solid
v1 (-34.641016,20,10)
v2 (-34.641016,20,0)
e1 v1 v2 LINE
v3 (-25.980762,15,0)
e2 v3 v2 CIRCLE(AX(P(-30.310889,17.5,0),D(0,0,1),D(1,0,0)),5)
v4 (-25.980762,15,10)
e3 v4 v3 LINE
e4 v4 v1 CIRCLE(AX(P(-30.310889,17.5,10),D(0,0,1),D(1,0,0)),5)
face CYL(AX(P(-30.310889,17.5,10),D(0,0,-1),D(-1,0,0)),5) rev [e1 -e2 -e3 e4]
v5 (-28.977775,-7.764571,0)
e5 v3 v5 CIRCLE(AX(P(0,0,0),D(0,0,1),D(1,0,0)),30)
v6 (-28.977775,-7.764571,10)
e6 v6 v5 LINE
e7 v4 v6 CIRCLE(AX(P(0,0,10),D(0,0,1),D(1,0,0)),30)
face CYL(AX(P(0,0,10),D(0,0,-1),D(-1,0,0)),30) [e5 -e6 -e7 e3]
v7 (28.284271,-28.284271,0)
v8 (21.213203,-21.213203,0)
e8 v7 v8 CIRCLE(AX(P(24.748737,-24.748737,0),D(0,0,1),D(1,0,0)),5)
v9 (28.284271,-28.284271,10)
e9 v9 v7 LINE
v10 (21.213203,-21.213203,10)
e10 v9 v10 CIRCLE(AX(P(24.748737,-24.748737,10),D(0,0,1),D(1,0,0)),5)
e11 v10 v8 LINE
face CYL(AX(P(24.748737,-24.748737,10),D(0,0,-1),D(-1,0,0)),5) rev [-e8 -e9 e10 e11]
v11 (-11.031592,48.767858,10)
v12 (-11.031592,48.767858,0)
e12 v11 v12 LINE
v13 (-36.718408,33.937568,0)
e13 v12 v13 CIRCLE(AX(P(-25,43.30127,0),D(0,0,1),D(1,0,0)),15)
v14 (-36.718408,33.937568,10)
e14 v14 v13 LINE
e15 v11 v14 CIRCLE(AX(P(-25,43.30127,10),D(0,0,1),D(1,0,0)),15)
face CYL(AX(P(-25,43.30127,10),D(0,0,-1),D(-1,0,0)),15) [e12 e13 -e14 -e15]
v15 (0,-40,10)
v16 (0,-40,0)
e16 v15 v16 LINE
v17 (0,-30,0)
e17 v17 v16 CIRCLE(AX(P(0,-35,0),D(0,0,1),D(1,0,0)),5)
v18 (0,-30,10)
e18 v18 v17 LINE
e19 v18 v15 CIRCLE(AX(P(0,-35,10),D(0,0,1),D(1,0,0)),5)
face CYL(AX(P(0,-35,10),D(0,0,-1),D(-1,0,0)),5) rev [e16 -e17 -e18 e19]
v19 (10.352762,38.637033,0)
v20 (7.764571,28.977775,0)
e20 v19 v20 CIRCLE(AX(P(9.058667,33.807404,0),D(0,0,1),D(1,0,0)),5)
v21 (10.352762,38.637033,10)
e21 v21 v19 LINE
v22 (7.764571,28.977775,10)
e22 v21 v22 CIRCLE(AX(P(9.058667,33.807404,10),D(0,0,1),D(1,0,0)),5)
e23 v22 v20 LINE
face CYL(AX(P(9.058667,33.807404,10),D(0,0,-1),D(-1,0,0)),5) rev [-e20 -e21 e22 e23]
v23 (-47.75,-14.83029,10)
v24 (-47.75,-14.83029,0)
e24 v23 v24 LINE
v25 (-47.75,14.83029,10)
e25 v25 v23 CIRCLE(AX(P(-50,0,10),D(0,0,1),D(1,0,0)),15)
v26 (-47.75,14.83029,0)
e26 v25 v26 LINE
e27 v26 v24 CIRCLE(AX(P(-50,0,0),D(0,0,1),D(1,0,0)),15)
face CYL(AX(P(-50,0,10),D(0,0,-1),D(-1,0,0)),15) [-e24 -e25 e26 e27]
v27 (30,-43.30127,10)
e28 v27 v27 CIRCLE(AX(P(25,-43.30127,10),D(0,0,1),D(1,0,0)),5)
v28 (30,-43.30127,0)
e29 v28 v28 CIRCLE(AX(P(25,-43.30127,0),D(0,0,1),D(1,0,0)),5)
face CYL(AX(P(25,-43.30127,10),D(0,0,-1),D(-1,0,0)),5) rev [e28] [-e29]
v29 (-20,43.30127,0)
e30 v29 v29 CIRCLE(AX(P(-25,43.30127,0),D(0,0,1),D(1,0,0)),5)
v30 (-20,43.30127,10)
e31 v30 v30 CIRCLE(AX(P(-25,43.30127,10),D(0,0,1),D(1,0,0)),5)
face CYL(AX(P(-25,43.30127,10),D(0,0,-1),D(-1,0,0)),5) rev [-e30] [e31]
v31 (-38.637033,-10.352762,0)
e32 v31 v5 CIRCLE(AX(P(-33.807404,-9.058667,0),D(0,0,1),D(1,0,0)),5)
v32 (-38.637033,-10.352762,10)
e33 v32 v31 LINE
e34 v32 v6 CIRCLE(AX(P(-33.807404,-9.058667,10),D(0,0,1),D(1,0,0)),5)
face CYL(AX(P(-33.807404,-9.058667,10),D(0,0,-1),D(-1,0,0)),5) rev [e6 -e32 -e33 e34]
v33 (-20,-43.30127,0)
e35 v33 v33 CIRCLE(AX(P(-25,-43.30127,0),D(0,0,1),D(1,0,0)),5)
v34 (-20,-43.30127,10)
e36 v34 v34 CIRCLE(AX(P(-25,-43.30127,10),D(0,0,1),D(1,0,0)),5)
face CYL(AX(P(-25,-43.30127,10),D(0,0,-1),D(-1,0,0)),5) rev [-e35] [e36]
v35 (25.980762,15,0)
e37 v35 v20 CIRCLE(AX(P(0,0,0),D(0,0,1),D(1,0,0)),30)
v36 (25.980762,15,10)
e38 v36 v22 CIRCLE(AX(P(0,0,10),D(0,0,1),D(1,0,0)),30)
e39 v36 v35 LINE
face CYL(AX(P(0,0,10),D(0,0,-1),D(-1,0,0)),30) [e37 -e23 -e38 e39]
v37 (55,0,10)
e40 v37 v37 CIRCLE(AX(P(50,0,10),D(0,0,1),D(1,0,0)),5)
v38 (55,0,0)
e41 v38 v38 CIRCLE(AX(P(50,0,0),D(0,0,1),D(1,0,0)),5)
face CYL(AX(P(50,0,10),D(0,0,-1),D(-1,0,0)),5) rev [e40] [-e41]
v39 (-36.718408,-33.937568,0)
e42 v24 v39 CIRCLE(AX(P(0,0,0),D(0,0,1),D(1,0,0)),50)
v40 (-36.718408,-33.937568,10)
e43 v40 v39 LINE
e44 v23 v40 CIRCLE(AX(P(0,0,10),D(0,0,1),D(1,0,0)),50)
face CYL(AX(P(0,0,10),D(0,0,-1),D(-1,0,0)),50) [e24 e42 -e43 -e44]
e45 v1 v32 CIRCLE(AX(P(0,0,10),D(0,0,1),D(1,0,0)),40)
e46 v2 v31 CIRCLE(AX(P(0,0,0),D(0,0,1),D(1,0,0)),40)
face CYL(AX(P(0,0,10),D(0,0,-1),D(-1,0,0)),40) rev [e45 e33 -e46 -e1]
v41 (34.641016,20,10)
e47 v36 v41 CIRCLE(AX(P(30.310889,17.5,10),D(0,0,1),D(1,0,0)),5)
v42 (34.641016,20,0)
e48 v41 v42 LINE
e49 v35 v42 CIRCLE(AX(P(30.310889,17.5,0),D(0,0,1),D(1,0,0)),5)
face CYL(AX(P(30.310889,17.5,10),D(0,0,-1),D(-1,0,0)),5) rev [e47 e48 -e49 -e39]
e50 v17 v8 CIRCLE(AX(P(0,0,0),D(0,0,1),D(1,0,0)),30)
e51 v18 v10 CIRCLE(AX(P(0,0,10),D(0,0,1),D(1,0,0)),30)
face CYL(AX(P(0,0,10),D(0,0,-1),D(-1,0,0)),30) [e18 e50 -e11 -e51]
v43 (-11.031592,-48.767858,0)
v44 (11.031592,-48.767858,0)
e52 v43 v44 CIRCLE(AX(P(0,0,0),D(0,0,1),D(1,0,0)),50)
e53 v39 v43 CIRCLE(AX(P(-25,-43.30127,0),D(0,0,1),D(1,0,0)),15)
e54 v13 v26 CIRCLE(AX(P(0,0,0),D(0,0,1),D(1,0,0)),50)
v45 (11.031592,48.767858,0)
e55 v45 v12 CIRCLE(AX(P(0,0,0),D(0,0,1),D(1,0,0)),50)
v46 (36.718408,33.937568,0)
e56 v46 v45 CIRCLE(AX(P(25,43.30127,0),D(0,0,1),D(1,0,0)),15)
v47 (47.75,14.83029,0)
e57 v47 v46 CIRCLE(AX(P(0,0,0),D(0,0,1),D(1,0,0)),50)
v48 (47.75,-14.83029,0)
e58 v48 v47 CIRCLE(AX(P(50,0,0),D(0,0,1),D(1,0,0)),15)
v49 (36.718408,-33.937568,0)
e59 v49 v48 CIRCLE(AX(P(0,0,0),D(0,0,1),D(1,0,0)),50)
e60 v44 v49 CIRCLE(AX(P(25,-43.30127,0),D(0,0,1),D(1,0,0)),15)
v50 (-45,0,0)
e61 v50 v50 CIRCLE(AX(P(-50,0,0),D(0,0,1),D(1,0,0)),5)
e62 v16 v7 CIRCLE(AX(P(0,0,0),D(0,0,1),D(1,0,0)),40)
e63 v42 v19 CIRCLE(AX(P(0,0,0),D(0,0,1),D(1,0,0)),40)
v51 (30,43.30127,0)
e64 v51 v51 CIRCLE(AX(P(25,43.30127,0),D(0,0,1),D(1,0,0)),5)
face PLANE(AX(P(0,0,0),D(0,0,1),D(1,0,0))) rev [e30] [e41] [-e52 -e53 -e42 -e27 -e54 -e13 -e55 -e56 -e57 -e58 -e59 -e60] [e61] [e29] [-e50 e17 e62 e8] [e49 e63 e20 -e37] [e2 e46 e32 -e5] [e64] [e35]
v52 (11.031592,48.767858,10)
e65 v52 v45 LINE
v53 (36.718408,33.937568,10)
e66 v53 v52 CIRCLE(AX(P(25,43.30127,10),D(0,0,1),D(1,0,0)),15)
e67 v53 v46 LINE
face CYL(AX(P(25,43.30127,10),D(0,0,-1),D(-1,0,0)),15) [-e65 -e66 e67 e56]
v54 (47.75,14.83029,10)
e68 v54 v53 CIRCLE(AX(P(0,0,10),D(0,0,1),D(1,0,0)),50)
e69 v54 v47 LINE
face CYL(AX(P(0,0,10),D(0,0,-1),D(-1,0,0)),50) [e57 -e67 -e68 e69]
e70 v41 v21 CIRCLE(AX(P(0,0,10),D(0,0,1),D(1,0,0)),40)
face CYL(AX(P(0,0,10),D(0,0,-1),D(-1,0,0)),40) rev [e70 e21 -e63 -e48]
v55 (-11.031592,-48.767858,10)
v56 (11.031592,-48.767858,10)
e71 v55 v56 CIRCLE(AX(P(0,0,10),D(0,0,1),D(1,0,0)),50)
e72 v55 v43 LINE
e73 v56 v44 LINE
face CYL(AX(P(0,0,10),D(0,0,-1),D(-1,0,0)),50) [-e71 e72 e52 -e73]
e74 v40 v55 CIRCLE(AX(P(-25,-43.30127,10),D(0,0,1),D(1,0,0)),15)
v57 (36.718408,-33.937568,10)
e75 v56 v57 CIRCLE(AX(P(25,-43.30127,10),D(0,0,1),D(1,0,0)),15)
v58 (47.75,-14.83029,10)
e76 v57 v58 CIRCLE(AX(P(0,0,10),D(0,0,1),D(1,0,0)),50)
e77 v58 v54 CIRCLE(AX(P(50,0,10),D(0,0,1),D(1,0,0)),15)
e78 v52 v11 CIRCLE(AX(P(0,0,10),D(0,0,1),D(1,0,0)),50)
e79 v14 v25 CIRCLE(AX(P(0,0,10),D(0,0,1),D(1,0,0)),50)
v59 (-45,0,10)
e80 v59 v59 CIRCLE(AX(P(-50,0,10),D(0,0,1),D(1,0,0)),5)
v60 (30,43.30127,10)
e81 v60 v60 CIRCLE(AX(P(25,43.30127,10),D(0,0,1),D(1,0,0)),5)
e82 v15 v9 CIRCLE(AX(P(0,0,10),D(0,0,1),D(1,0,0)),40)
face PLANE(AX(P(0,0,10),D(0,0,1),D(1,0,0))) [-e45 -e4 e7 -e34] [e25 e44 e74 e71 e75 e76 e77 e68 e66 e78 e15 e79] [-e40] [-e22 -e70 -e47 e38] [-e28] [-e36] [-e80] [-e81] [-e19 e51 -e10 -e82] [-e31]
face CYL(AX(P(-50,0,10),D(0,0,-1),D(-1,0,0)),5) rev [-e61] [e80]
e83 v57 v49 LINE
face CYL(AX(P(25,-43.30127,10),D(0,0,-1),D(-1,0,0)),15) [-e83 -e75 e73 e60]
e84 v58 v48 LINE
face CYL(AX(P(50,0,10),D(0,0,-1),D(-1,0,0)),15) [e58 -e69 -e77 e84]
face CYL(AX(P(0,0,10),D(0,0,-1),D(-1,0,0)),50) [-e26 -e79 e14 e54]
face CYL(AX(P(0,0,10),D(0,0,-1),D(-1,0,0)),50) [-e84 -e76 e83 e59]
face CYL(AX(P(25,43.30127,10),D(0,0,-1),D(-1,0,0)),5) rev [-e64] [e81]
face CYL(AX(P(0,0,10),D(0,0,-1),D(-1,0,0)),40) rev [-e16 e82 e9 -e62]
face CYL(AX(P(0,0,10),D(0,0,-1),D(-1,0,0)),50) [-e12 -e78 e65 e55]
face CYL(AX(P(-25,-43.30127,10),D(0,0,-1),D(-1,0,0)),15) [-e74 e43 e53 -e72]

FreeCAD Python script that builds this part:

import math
import FreeCAD as App
import Part
import Sketcher
Q = App.Units.Quantity

doc = App.newDocument("Part")
body = doc.addObject("PartDesign::Body", "Body")

# Sketch on XY plane
sketch1 = body.newObject("Sketcher::SketchObject", "Sketch")
sketch1.AttachmentSupport = (doc.getObject("XY_Plane"), [""])
sketch1.MapMode = "FlatFace"
sketch1.addGeometry(Part.ArcOfCircle(Part.Circle(App.Vector(-50, 0, 0), App.Vector(0, 0, 1), 15), math.radians(81), math.radians(279)), False)
sketch1.addGeometry(Part.ArcOfCircle(Part.Circle(App.Vector(0, 0, 0), App.Vector(0, 0, 1), 50), math.radians(-163), math.radians(-137)), False)
sketch1.addGeometry(Part.ArcOfCircle(Part.Circle(App.Vector(-25, -43.3, 0), App.Vector(0, 0, 1), 15), math.radians(141), math.radians(339)), False)
sketch1.addGeometry(Part.ArcOfCircle(Part.Circle(App.Vector(0, 0, 0), App.Vector(0, 0, 1), 50), math.radians(-103), math.radians(-77)), False)
sketch1.addGeometry(Part.ArcOfCircle(Part.Circle(App.Vector(25, -43.3, 0), App.Vector(0, 0, 1), 15), math.radians(-159), math.radians(39)), False)
sketch1.addGeometry(Part.ArcOfCircle(Part.Circle(App.Vector(0, 0, 0), App.Vector(0, 0, 1), 50), math.radians(-43), math.radians(-17)), False)
sketch1.addGeometry(Part.ArcOfCircle(Part.Circle(App.Vector(50, 0, 0), App.Vector(0, 0, 1), 15), math.radians(-99), math.radians(99)), False)
sketch1.addGeometry(Part.ArcOfCircle(Part.Circle(App.Vector(0, 0, 0), App.Vector(0, 0, 1), 50), math.radians(17), math.radians(43)), False)
sketch1.addGeometry(Part.ArcOfCircle(Part.Circle(App.Vector(25, 43.3, 0), App.Vector(0, 0, 1), 15), math.radians(-39), math.radians(159)), False)
sketch1.addGeometry(Part.ArcOfCircle(Part.Circle(App.Vector(0, 0, 0), App.Vector(0, 0, 1), 50), math.radians(77), math.radians(103)), False)
sketch1.addGeometry(Part.ArcOfCircle(Part.Circle(App.Vector(-25, 43.3, 0), App.Vector(0, 0, 1), 15), math.radians(21), math.radians(219)), False)
sketch1.addGeometry(Part.ArcOfCircle(Part.Circle(App.Vector(0, 0, 0), App.Vector(0, 0, 1), 50), math.radians(137), math.radians(163)), False)
sketch1.addGeometry(Part.Circle(App.Vector(-25, -43.3, 0), App.Vector(0, 0, 1), 5), False)
sketch1.addGeometry(Part.Circle(App.Vector(-50, 0, 0), App.Vector(0, 0, 1), 5), False)
sketch1.addGeometry(Part.Circle(App.Vector(25, -43.3, 0), App.Vector(0, 0, 1), 5), False)
sketch1.addGeometry(Part.ArcOfCircle(Part.Circle(App.Vector(0, 0, 0), App.Vector(0, 0, 1), 40), math.radians(-90), math.radians(-45)), False)
sketch1.addGeometry(Part.ArcOfCircle(Part.Circle(App.Vector(0, -35, 0), App.Vector(0, 0, 1), 5), math.radians(90), math.radians(270)), False)
sketch1.addGeometry(Part.ArcOfCircle(Part.Circle(App.Vector(0, 0, 0), App.Vector(0, 0, 1), 30), math.radians(-90), math.radians(-45)), False)
sketch1.addGeometry(Part.ArcOfCircle(Part.Circle(App.Vector(24.7, -24.7, 0), App.Vector(0, 0, 1), 5), math.radians(-45), math.radians(135)), False)
sketch1.addGeometry(Part.Circle(App.Vector(50, 0, 0), App.Vector(0, 0, 1), 5), False)
sketch1.addGeometry(Part.ArcOfCircle(Part.Circle(App.Vector(0, 0, 0), App.Vector(0, 0, 1), 40), math.radians(150), math.radians(195)), False)
sketch1.addGeometry(Part.ArcOfCircle(Part.Circle(App.Vector(-30.3, 17.5, 0), App.Vector(0, 0, 1), 5), math.radians(-30), math.radians(150)), False)
sketch1.addGeometry(Part.ArcOfCircle(Part.Circle(App.Vector(0, 0, 0), App.Vector(0, 0, 1), 30), math.radians(150), math.radians(195)), False)
sketch1.addGeometry(Part.ArcOfCircle(Part.Circle(App.Vector(-33.8, -9.1, 0), App.Vector(0, 0, 1), 5), math.radians(-165), math.radians(15)), False)
sketch1.addGeometry(Part.Circle(App.Vector(-25, 43.3, 0), App.Vector(0, 0, 1), 5), False)
sketch1.addGeometry(Part.ArcOfCircle(Part.Circle(App.Vector(0, 0, 0), App.Vector(0, 0, 1), 40), math.radians(30), math.radians(75)), False)
sketch1.addGeometry(Part.ArcOfCircle(Part.Circle(App.Vector(30.3, 17.5, 0), App.Vector(0, 0, 1), 5), math.radians(-150), math.radians(30)), False)
sketch1.addGeometry(Part.ArcOfCircle(Part.Circle(App.Vector(0, 0, 0), App.Vector(0, 0, 1), 30), math.radians(30), math.radians(75)), False)
sketch1.addGeometry(Part.ArcOfCircle(Part.Circle(App.Vector(9.1, 33.8, 0), App.Vector(0, 0, 1), 5), math.radians(75), math.radians(255)), False)
sketch1.addGeometry(Part.Circle(App.Vector(25, 43.3, 0), App.Vector(0, 0, 1), 5), False)
sketch1.addConstraint(Sketcher.Constraint("Coincident", 0, 2, 1, 1))
sketch1.addConstraint(Sketcher.Constraint("Coincident", 1, 2, 2, 1))
sketch1.addConstraint(Sketcher.Constraint("Coincident", 2, 2, 3, 1))
sketch1.addConstraint(Sketcher.Constraint("Coincident", 3, 2, 4, 1))
sketch1.addConstraint(Sketcher.Constraint("Coincident", 4, 2, 5, 1))
sketch1.addConstraint(Sketcher.Constraint("Coincident", 5, 2, 6, 1))
sketch1.addConstraint(Sketcher.Constraint("Coincident", 6, 2, 7, 1))
sketch1.addConstraint(Sketcher.Constraint("Coincident", 7, 2, 8, 1))
sketch1.addConstraint(Sketcher.Constraint("Coincident", 8, 2, 9, 1))
sketch1.addConstraint(Sketcher.Constraint("Coincident", 9, 2, 10, 1))
sketch1.addConstraint(Sketcher.Constraint("Coincident", 10, 2, 11, 1))
sketch1.addConstraint(Sketcher.Constraint("Coincident", 11, 2, 0, 1))
sketch1.addConstraint(Sketcher.Constraint("Tangent", 15, 1, 16, 2))
sketch1.addConstraint(Sketcher.Constraint("Tangent", 16, 1, 17, 1))
sketch1.addConstraint(Sketcher.Constraint("Tangent", 17, 2, 18, 2))
sketch1.addConstraint(Sketcher.Constraint("Tangent", 18, 1, 15, 2))
sketch1.addConstraint(Sketcher.Constraint("Tangent", 20, 1, 21, 2))
sketch1.addConstraint(Sketcher.Constraint("Tangent", 21, 1, 22, 1))
sketch1.addConstraint(Sketcher.Constraint("Tangent", 22, 2, 23, 2))
sketch1.addConstraint(Sketcher.Constraint("Tangent", 23, 1, 20, 2))
sketch1.addConstraint(Sketcher.Constraint("Tangent", 25, 1, 26, 2))
sketch1.addConstraint(Sketcher.Constraint("Tangent", 26, 1, 27, 1))
sketch1.addConstraint(Sketcher.Constraint("Tangent", 27, 2, 28, 2))
sketch1.addConstraint(Sketcher.Constraint("Tangent", 28, 1, 25, 2))
sketch1.addConstraint(Sketcher.Constraint("Coincident", 1, 3, -1, 1))
sketch1.addConstraint(Sketcher.Constraint("Coincident", 3, 3, -1, 1))
sketch1.addConstraint(Sketcher.Constraint("Coincident", 5, 3, -1, 1))
sketch1.addConstraint(Sketcher.Constraint("Coincident", 7, 3, -1, 1))
sketch1.addConstraint(Sketcher.Constraint("Coincident", 9, 3, -1, 1))
sketch1.addConstraint(Sketcher.Constraint("Coincident", 11, 3, -1, 1))
sketch1.addConstraint(Sketcher.Constraint("Coincident", 15, 3, -1, 1))
sketch1.addConstraint(Sketcher.Constraint("Coincident", 17, 3, -1, 1))
sketch1.addConstraint(Sketcher.Constraint("Coincident", 20, 3, -1, 1))
sketch1.addConstraint(Sketcher.Constraint("Coincident", 22, 3, -1, 1))
sketch1.addConstraint(Sketcher.Constraint("Coincident", 25, 3, -1, 1))
sketch1.addConstraint(Sketcher.Constraint("Coincident", 27, 3, -1, 1))
sketch1.addConstraint(Sketcher.Constraint("Coincident", 12, 3, 2, 3))
sketch1.addConstraint(Sketcher.Constraint("Coincident", 13, 3, 0, 3))
sketch1.addConstraint(Sketcher.Constraint("Coincident", 14, 3, 4, 3))
sketch1.addConstraint(Sketcher.Constraint("Coincident", 19, 3, 6, 3))
sketch1.addConstraint(Sketcher.Constraint("Coincident", 24, 3, 10, 3))
sketch1.addConstraint(Sketcher.Constraint("Coincident", 29, 3, 8, 3))
sketch1.addConstraint(Sketcher.Constraint("Equal", 0, 2))
sketch1.addConstraint(Sketcher.Constraint("Equal", 1, 3))
sketch1.addConstraint(Sketcher.Constraint("Equal", 2, 4))
sketch1.addConstraint(Sketcher.Constraint("Equal", 3, 5))
sketch1.addConstraint(Sketcher.Constraint("Equal", 4, 6))
sketch1.addConstraint(Sketcher.Constraint("Equal", 5, 7))
sketch1.addConstraint(Sketcher.Constraint("Equal", 6, 8))
sketch1.addConstraint(Sketcher.Constraint("Equal", 7, 9))
sketch1.addConstraint(Sketcher.Constraint("Equal", 8, 10))
sketch1.addConstraint(Sketcher.Constraint("Equal", 9, 11))
sketch1.addConstraint(Sketcher.Constraint("Equal", 12, 13))
sketch1.addConstraint(Sketcher.Constraint("Equal", 13, 14))
sketch1.addConstraint(Sketcher.Constraint("Equal", 14, 16))
sketch1.addConstraint(Sketcher.Constraint("Equal", 18, 19))
sketch1.addConstraint(Sketcher.Constraint("Equal", 15, 20))
sketch1.addConstraint(Sketcher.Constraint("Equal", 19, 21))
sketch1.addConstraint(Sketcher.Constraint("Equal", 23, 24))
sketch1.addConstraint(Sketcher.Constraint("Equal", 20, 25))
sketch1.addConstraint(Sketcher.Constraint("Equal", 24, 26))
sketch1.addConstraint(Sketcher.Constraint("Equal", 28, 29))
sketch1.addConstraint(Sketcher.Constraint("Symmetric", 0, 3, 6, 3, -1, 1))
sketch1.addConstraint(Sketcher.Constraint("Symmetric", 2, 3, 8, 3, -1, 1))
sketch1.addConstraint(Sketcher.Constraint("Symmetric", 4, 3, 10, 3, -1, 1))
sketch1.addConstraint(Sketcher.Constraint("Symmetric", 2, 3, 4, 3, -2))
sketch1.addConstraint(Sketcher.Constraint("PointOnObject", 0, 3, -1))
sketch1.addConstraint(Sketcher.Constraint("PointOnObject", 16, 3, -2))
sketch1.addConstraint(Sketcher.Constraint("Horizontal", 21, 3, 26, 3))
sketch1.addConstraint(Sketcher.Constraint("Diameter", 12, Q("10 mm")))
sketch1.addConstraint(Sketcher.Constraint("Radius", 0, Q("15 mm")))
sketch1.addConstraint(Sketcher.Constraint("Radius", 1, Q("50 mm")))
sketch1.addConstraint(Sketcher.Constraint("Radius", 15, Q("40 mm")))
sketch1.addConstraint(Sketcher.Constraint("DistanceX", 0, 3, -1, 1, Q("50 mm")))
sketch1.addConstraint(Sketcher.Constraint("DistanceX", 2, 3, -1, 1, Q("25 mm")))
sketch1.addConstraint(Sketcher.Constraint("DistanceY", -1, 1, 20, 1, Q("20 mm")))
sketch1.addConstraint(Sketcher.Constraint("DistanceY", 4, 3, 18, 1, Q("15.016999 mm")))
sketch1.addConstraint(Sketcher.Constraint("DistanceY", 1, 2, 23, 3, Q("24.878901 mm")))
sketch1.addConstraint(Sketcher.Constraint("DistanceY", 2, 3, -1, 1, Q("43.30127 mm")))
sketch1.addConstraint(Sketcher.Constraint("DistanceX", -1, 1, 27, 2, Q("7.764571 mm")))
pad1 = body.newObject("PartDesign::Pad", "Pad")
pad1.Profile = sketch1
pad1.Length = 10

doc.recompute()
